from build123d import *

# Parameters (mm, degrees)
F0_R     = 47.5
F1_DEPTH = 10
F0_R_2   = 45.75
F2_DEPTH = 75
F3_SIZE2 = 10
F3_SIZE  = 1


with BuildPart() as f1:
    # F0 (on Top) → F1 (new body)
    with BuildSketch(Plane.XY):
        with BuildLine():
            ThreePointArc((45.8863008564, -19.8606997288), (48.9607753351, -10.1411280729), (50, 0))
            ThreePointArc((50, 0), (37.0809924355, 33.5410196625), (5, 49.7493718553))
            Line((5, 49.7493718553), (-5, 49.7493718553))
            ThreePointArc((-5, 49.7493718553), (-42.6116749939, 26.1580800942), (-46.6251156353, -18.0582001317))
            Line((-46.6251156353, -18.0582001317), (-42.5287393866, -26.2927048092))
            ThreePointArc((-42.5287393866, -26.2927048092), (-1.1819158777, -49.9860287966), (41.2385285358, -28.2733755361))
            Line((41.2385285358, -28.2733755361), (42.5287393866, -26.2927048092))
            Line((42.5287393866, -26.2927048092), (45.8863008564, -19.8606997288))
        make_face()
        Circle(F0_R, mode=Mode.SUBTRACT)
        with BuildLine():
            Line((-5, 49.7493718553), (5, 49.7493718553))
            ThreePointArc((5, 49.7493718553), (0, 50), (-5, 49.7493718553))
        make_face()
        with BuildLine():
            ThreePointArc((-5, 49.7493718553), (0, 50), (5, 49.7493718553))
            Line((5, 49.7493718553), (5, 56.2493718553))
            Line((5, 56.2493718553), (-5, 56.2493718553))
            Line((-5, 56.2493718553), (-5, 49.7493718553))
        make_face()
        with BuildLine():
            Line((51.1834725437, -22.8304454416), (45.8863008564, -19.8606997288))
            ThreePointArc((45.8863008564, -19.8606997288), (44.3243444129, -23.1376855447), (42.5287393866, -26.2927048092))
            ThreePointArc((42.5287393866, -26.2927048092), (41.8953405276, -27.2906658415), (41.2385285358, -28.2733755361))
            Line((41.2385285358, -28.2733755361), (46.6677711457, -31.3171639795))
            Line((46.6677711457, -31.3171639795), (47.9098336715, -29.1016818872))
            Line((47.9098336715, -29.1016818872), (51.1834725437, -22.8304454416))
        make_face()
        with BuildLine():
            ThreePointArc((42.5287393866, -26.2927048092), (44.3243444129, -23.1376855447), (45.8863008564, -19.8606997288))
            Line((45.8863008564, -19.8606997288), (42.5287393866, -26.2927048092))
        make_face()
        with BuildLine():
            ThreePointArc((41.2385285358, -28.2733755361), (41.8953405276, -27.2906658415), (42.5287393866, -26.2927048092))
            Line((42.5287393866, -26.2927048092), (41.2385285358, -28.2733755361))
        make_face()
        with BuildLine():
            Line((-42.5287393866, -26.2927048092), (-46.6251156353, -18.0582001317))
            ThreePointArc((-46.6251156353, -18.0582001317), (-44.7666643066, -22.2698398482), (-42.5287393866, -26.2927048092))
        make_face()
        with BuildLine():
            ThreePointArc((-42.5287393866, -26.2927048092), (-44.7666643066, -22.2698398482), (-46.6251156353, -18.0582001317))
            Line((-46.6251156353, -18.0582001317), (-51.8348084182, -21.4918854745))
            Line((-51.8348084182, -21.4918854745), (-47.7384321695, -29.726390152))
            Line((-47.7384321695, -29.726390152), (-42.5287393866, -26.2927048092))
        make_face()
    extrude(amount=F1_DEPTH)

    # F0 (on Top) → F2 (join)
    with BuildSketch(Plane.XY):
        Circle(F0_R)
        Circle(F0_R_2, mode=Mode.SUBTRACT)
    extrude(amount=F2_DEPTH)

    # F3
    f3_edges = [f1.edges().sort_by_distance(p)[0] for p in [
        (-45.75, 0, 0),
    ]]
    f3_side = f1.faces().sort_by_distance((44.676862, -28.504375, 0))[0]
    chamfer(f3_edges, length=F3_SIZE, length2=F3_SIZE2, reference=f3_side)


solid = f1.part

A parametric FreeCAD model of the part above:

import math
import FreeCAD as App
import Part
import Sketcher

V = App.Vector
Q = App.Units.Quantity


def edges_at(feature, points):
    """Names of the edges that pass closest to the given points."""
    edges = feature.Shape.Edges
    near = lambda p: min(range(len(edges)), key=lambda i: edges[i].distToShape(Part.Vertex(*p))[0])
    return sorted({f"Edge{near(p) + 1}" for p in points})

doc = App.newDocument("Part")
params = doc.addObject("Spreadsheet::Sheet", "Params")
for row, (alias, value) in enumerate([
    ("sketch1_diameter", "95 mm"),
    ("sketch1_radius", "50 mm"),
    ("sketch1_width", "10 mm"),
    ("sketch1_height", "6.5 mm"),
    ("pad1_length", "10 mm"),
    ("sketch2_diameter", "95 mm"),
    ("sketch2_diameter2", "91.5 mm"),
    ("pad2_length", "75 mm"),
    ("chamfer_size", "1 mm"),
    ("chamfer_size2", "10 mm"),
], start=1):
    params.set(f"A{row}", alias)
    params.set(f"B{row}", "=" + value)
    params.setAlias(f"B{row}", alias)

body = doc.addObject("PartDesign::Body", "Body")

sketch1 = body.newObject("Sketcher::SketchObject", "Sketch")
sketch1.AttachmentSupport = (doc.getObject("XY_Plane"), [""])
sketch1.MapMode = "FlatFace"
sketch1.addGeometry([
    Part.ArcOfCircle(Part.Circle(V(0, 0, 0), V(0, 0, 1), 50), math.radians(-148), math.radians(-34)),
    Part.LineSegment(V(41.2, -28.3, 0), V(46.7, -31.3, 0)),
    Part.LineSegment(V(46.7, -31.3, 0), V(47.9, -29.1, 0)),
    Part.LineSegment(V(47.9, -29.1, 0), V(51.2, -22.8, 0)),
    Part.LineSegment(V(51.2, -22.8, 0), V(45.9, -19.9, 0)),
    Part.ArcOfCircle(Part.Circle(V(0, 0, 0), V(0, 0, 1), 50), math.radians(-23), math.radians(0)),
    Part.ArcOfCircle(Part.Circle(V(0, 0, 0), V(0, 0, 1), 50), math.radians(0), math.radians(84)),
    Part.LineSegment(V(5, 49.7, 0), V(5, 56.2, 0)),
    Part.LineSegment(V(5, 56.2, 0), V(-5, 56.2, 0)),
    Part.LineSegment(V(-5, 56.2, 0), V(-5, 49.7, 0)),
    Part.ArcOfCircle(Part.Circle(V(0, 0, 0), V(0, 0, 1), 50), math.radians(96), math.radians(201)),
    Part.LineSegment(V(-46.6, -18.1, 0), V(-51.8, -21.5, 0)),
    Part.LineSegment(V(-51.8, -21.5, 0), V(-47.7, -29.7, 0)),
    Part.LineSegment(V(-47.7, -29.7, 0), V(-42.5, -26.3, 0)),
    Part.Circle(V(0, 0, 0), V(0, 0, 1), 47.5),
], False)
sketch1.addConstraint([
    Sketcher.Constraint("Coincident", 0, 2, 1, 1),
    Sketcher.Constraint("Coincident", 1, 2, 2, 1),
    Sketcher.Constraint("Coincident", 2, 2, 3, 1),
    Sketcher.Constraint("Coincident", 3, 2, 4, 1),
    Sketcher.Constraint("Coincident", 4, 2, 5, 1),
    Sketcher.Constraint("Tangent", 5, 2, 6, 1),
    Sketcher.Constraint("Coincident", 6, 2, 7, 1),
    Sketcher.Constraint("Coincident", 7, 2, 8, 1),
    Sketcher.Constraint("Coincident", 8, 2, 9, 1),
    Sketcher.Constraint("Coincident", 9, 2, 10, 1),
    Sketcher.Constraint("Coincident", 10, 2, 11, 1),
    Sketcher.Constraint("Coincident", 11, 2, 12, 1),
    Sketcher.Constraint("Coincident", 12, 2, 13, 1),
    Sketcher.Constraint("Coincident", 13, 2, 0, 1),
    Sketcher.Constraint("Vertical", 7),
    Sketcher.Constraint("Horizontal", 8),
    Sketcher.Constraint("Vertical", 9),
    Sketcher.Constraint("Coincident", 0, 3, -1, 1),
    Sketcher.Constraint("Coincident", 5, 3, -1, 1),
    Sketcher.Constraint("Coincident", 10, 3, -1, 1),
    Sketcher.Constraint("Coincident", 14, 3, -1, 1),
    Sketcher.Constraint("Equal", 0, 5),
    Sketcher.Constraint("Equal", 5, 6),
    Sketcher.Constraint("Equal", 6, 10),
    Sketcher.Constraint("PointOnObject", 5, 2, -1),
    Sketcher.Constraint("Perpendicular", 1, 2),
    Sketcher.Constraint("Perpendicular", 2, 4),
    Sketcher.Constraint("Parallel", 11, 13),
    Sketcher.Constraint("Horizontal", 6, 2, 9, 2),
    Sketcher.Constraint("Equal", 11, 13),
    Sketcher.Constraint("Diameter", 14, Q("95 mm")),
    Sketcher.Constraint("Radius", 0, Q("50 mm")),
    Sketcher.Constraint("DistanceX", 8, 2, 8, 1, Q("10 mm")),
    Sketcher.Constraint("DistanceY", 7, 1, 7, 2, Q("6.5 mm")),
    Sketcher.Constraint("DistanceX", -1, 1, 4, 2, Q("45.886301 mm")),
    Sketcher.Constraint("DistanceY", 10, 2, -1, 1, Q("18.0582 mm")),
    Sketcher.Constraint("DistanceX", 1, 2, 3, 2, Q("4.515701 mm")),
    Sketcher.Constraint("Distance", 11, Q("6.239479 mm")),
    Sketcher.Constraint("Distance", 12, Q("9.197139 mm")),
    Sketcher.Constraint("DistanceX", -1, 1, 0, 2, Q("41.238529 mm")),
    Sketcher.Constraint("DistanceX", -1, 1, 1, 2, Q("46.667771 mm")),
    Sketcher.Constraint("DistanceY", 2, 2, -1, 1, Q("29.101682 mm")),
    Sketcher.Constraint("DistanceX", 11, 2, -1, 1, Q("51.834808 mm")),
    Sketcher.Constraint("DistanceY", 1, 2, 0, 2, Q("3.043788 mm")),
])
sketch1.setExpression("Constraints[30]", "Params.sketch1_diameter")
sketch1.setExpression("Constraints[31]", "Params.sketch1_radius")
sketch1.setExpression("Constraints[32]", "Params.sketch1_width")
sketch1.setExpression("Constraints[33]", "Params.sketch1_height")
pad1 = body.newObject("PartDesign::Pad", "Pad")
pad1.Profile = sketch1
pad1.setExpression("Length", "Params.pad1_length")

sketch2 = body.newObject("Sketcher::SketchObject", "Sketch001")
sketch2.AttachmentSupport = (doc.getObject("XY_Plane"), [""])
sketch2.MapMode = "FlatFace"
sketch2.addGeometry([
    Part.Circle(V(0, 0, 0), V(0, 0, 1), 48),
    Part.Circle(V(0, 0, 0), V(0, 0, 1), 46),
], False)
sketch2.addConstraint([
    Sketcher.Constraint("Coincident", 0, 3, -1, 1),
    Sketcher.Constraint("Coincident", 1, 3, -1, 1),
    Sketcher.Constraint("Diameter", 0, Q("95 mm")),
    Sketcher.Constraint("Diameter", 1, Q("91.5 mm")),
])
sketch2.setExpression("Constraints[2]", "Params.sketch2_diameter")
sketch2.setExpression("Constraints[3]", "Params.sketch2_diameter2")
pad2 = body.newObject("PartDesign::Pad", "Pad001")
pad2.Profile = sketch2
pad2.setExpression("Length", "Params.pad2_length")
doc.recompute()

chamfer = body.newObject("PartDesign::Chamfer", "Chamfer")
chamfer.Base = (pad2, edges_at(pad2, [(-45.75, 0, 0)]))
chamfer.ChamferType = "Two distances"
chamfer.setExpression("Size", "Params.chamfer_size")
chamfer.setExpression("Size2", "Params.chamfer_size2")
chamfer.FlipDirection = True

doc.recompute()
